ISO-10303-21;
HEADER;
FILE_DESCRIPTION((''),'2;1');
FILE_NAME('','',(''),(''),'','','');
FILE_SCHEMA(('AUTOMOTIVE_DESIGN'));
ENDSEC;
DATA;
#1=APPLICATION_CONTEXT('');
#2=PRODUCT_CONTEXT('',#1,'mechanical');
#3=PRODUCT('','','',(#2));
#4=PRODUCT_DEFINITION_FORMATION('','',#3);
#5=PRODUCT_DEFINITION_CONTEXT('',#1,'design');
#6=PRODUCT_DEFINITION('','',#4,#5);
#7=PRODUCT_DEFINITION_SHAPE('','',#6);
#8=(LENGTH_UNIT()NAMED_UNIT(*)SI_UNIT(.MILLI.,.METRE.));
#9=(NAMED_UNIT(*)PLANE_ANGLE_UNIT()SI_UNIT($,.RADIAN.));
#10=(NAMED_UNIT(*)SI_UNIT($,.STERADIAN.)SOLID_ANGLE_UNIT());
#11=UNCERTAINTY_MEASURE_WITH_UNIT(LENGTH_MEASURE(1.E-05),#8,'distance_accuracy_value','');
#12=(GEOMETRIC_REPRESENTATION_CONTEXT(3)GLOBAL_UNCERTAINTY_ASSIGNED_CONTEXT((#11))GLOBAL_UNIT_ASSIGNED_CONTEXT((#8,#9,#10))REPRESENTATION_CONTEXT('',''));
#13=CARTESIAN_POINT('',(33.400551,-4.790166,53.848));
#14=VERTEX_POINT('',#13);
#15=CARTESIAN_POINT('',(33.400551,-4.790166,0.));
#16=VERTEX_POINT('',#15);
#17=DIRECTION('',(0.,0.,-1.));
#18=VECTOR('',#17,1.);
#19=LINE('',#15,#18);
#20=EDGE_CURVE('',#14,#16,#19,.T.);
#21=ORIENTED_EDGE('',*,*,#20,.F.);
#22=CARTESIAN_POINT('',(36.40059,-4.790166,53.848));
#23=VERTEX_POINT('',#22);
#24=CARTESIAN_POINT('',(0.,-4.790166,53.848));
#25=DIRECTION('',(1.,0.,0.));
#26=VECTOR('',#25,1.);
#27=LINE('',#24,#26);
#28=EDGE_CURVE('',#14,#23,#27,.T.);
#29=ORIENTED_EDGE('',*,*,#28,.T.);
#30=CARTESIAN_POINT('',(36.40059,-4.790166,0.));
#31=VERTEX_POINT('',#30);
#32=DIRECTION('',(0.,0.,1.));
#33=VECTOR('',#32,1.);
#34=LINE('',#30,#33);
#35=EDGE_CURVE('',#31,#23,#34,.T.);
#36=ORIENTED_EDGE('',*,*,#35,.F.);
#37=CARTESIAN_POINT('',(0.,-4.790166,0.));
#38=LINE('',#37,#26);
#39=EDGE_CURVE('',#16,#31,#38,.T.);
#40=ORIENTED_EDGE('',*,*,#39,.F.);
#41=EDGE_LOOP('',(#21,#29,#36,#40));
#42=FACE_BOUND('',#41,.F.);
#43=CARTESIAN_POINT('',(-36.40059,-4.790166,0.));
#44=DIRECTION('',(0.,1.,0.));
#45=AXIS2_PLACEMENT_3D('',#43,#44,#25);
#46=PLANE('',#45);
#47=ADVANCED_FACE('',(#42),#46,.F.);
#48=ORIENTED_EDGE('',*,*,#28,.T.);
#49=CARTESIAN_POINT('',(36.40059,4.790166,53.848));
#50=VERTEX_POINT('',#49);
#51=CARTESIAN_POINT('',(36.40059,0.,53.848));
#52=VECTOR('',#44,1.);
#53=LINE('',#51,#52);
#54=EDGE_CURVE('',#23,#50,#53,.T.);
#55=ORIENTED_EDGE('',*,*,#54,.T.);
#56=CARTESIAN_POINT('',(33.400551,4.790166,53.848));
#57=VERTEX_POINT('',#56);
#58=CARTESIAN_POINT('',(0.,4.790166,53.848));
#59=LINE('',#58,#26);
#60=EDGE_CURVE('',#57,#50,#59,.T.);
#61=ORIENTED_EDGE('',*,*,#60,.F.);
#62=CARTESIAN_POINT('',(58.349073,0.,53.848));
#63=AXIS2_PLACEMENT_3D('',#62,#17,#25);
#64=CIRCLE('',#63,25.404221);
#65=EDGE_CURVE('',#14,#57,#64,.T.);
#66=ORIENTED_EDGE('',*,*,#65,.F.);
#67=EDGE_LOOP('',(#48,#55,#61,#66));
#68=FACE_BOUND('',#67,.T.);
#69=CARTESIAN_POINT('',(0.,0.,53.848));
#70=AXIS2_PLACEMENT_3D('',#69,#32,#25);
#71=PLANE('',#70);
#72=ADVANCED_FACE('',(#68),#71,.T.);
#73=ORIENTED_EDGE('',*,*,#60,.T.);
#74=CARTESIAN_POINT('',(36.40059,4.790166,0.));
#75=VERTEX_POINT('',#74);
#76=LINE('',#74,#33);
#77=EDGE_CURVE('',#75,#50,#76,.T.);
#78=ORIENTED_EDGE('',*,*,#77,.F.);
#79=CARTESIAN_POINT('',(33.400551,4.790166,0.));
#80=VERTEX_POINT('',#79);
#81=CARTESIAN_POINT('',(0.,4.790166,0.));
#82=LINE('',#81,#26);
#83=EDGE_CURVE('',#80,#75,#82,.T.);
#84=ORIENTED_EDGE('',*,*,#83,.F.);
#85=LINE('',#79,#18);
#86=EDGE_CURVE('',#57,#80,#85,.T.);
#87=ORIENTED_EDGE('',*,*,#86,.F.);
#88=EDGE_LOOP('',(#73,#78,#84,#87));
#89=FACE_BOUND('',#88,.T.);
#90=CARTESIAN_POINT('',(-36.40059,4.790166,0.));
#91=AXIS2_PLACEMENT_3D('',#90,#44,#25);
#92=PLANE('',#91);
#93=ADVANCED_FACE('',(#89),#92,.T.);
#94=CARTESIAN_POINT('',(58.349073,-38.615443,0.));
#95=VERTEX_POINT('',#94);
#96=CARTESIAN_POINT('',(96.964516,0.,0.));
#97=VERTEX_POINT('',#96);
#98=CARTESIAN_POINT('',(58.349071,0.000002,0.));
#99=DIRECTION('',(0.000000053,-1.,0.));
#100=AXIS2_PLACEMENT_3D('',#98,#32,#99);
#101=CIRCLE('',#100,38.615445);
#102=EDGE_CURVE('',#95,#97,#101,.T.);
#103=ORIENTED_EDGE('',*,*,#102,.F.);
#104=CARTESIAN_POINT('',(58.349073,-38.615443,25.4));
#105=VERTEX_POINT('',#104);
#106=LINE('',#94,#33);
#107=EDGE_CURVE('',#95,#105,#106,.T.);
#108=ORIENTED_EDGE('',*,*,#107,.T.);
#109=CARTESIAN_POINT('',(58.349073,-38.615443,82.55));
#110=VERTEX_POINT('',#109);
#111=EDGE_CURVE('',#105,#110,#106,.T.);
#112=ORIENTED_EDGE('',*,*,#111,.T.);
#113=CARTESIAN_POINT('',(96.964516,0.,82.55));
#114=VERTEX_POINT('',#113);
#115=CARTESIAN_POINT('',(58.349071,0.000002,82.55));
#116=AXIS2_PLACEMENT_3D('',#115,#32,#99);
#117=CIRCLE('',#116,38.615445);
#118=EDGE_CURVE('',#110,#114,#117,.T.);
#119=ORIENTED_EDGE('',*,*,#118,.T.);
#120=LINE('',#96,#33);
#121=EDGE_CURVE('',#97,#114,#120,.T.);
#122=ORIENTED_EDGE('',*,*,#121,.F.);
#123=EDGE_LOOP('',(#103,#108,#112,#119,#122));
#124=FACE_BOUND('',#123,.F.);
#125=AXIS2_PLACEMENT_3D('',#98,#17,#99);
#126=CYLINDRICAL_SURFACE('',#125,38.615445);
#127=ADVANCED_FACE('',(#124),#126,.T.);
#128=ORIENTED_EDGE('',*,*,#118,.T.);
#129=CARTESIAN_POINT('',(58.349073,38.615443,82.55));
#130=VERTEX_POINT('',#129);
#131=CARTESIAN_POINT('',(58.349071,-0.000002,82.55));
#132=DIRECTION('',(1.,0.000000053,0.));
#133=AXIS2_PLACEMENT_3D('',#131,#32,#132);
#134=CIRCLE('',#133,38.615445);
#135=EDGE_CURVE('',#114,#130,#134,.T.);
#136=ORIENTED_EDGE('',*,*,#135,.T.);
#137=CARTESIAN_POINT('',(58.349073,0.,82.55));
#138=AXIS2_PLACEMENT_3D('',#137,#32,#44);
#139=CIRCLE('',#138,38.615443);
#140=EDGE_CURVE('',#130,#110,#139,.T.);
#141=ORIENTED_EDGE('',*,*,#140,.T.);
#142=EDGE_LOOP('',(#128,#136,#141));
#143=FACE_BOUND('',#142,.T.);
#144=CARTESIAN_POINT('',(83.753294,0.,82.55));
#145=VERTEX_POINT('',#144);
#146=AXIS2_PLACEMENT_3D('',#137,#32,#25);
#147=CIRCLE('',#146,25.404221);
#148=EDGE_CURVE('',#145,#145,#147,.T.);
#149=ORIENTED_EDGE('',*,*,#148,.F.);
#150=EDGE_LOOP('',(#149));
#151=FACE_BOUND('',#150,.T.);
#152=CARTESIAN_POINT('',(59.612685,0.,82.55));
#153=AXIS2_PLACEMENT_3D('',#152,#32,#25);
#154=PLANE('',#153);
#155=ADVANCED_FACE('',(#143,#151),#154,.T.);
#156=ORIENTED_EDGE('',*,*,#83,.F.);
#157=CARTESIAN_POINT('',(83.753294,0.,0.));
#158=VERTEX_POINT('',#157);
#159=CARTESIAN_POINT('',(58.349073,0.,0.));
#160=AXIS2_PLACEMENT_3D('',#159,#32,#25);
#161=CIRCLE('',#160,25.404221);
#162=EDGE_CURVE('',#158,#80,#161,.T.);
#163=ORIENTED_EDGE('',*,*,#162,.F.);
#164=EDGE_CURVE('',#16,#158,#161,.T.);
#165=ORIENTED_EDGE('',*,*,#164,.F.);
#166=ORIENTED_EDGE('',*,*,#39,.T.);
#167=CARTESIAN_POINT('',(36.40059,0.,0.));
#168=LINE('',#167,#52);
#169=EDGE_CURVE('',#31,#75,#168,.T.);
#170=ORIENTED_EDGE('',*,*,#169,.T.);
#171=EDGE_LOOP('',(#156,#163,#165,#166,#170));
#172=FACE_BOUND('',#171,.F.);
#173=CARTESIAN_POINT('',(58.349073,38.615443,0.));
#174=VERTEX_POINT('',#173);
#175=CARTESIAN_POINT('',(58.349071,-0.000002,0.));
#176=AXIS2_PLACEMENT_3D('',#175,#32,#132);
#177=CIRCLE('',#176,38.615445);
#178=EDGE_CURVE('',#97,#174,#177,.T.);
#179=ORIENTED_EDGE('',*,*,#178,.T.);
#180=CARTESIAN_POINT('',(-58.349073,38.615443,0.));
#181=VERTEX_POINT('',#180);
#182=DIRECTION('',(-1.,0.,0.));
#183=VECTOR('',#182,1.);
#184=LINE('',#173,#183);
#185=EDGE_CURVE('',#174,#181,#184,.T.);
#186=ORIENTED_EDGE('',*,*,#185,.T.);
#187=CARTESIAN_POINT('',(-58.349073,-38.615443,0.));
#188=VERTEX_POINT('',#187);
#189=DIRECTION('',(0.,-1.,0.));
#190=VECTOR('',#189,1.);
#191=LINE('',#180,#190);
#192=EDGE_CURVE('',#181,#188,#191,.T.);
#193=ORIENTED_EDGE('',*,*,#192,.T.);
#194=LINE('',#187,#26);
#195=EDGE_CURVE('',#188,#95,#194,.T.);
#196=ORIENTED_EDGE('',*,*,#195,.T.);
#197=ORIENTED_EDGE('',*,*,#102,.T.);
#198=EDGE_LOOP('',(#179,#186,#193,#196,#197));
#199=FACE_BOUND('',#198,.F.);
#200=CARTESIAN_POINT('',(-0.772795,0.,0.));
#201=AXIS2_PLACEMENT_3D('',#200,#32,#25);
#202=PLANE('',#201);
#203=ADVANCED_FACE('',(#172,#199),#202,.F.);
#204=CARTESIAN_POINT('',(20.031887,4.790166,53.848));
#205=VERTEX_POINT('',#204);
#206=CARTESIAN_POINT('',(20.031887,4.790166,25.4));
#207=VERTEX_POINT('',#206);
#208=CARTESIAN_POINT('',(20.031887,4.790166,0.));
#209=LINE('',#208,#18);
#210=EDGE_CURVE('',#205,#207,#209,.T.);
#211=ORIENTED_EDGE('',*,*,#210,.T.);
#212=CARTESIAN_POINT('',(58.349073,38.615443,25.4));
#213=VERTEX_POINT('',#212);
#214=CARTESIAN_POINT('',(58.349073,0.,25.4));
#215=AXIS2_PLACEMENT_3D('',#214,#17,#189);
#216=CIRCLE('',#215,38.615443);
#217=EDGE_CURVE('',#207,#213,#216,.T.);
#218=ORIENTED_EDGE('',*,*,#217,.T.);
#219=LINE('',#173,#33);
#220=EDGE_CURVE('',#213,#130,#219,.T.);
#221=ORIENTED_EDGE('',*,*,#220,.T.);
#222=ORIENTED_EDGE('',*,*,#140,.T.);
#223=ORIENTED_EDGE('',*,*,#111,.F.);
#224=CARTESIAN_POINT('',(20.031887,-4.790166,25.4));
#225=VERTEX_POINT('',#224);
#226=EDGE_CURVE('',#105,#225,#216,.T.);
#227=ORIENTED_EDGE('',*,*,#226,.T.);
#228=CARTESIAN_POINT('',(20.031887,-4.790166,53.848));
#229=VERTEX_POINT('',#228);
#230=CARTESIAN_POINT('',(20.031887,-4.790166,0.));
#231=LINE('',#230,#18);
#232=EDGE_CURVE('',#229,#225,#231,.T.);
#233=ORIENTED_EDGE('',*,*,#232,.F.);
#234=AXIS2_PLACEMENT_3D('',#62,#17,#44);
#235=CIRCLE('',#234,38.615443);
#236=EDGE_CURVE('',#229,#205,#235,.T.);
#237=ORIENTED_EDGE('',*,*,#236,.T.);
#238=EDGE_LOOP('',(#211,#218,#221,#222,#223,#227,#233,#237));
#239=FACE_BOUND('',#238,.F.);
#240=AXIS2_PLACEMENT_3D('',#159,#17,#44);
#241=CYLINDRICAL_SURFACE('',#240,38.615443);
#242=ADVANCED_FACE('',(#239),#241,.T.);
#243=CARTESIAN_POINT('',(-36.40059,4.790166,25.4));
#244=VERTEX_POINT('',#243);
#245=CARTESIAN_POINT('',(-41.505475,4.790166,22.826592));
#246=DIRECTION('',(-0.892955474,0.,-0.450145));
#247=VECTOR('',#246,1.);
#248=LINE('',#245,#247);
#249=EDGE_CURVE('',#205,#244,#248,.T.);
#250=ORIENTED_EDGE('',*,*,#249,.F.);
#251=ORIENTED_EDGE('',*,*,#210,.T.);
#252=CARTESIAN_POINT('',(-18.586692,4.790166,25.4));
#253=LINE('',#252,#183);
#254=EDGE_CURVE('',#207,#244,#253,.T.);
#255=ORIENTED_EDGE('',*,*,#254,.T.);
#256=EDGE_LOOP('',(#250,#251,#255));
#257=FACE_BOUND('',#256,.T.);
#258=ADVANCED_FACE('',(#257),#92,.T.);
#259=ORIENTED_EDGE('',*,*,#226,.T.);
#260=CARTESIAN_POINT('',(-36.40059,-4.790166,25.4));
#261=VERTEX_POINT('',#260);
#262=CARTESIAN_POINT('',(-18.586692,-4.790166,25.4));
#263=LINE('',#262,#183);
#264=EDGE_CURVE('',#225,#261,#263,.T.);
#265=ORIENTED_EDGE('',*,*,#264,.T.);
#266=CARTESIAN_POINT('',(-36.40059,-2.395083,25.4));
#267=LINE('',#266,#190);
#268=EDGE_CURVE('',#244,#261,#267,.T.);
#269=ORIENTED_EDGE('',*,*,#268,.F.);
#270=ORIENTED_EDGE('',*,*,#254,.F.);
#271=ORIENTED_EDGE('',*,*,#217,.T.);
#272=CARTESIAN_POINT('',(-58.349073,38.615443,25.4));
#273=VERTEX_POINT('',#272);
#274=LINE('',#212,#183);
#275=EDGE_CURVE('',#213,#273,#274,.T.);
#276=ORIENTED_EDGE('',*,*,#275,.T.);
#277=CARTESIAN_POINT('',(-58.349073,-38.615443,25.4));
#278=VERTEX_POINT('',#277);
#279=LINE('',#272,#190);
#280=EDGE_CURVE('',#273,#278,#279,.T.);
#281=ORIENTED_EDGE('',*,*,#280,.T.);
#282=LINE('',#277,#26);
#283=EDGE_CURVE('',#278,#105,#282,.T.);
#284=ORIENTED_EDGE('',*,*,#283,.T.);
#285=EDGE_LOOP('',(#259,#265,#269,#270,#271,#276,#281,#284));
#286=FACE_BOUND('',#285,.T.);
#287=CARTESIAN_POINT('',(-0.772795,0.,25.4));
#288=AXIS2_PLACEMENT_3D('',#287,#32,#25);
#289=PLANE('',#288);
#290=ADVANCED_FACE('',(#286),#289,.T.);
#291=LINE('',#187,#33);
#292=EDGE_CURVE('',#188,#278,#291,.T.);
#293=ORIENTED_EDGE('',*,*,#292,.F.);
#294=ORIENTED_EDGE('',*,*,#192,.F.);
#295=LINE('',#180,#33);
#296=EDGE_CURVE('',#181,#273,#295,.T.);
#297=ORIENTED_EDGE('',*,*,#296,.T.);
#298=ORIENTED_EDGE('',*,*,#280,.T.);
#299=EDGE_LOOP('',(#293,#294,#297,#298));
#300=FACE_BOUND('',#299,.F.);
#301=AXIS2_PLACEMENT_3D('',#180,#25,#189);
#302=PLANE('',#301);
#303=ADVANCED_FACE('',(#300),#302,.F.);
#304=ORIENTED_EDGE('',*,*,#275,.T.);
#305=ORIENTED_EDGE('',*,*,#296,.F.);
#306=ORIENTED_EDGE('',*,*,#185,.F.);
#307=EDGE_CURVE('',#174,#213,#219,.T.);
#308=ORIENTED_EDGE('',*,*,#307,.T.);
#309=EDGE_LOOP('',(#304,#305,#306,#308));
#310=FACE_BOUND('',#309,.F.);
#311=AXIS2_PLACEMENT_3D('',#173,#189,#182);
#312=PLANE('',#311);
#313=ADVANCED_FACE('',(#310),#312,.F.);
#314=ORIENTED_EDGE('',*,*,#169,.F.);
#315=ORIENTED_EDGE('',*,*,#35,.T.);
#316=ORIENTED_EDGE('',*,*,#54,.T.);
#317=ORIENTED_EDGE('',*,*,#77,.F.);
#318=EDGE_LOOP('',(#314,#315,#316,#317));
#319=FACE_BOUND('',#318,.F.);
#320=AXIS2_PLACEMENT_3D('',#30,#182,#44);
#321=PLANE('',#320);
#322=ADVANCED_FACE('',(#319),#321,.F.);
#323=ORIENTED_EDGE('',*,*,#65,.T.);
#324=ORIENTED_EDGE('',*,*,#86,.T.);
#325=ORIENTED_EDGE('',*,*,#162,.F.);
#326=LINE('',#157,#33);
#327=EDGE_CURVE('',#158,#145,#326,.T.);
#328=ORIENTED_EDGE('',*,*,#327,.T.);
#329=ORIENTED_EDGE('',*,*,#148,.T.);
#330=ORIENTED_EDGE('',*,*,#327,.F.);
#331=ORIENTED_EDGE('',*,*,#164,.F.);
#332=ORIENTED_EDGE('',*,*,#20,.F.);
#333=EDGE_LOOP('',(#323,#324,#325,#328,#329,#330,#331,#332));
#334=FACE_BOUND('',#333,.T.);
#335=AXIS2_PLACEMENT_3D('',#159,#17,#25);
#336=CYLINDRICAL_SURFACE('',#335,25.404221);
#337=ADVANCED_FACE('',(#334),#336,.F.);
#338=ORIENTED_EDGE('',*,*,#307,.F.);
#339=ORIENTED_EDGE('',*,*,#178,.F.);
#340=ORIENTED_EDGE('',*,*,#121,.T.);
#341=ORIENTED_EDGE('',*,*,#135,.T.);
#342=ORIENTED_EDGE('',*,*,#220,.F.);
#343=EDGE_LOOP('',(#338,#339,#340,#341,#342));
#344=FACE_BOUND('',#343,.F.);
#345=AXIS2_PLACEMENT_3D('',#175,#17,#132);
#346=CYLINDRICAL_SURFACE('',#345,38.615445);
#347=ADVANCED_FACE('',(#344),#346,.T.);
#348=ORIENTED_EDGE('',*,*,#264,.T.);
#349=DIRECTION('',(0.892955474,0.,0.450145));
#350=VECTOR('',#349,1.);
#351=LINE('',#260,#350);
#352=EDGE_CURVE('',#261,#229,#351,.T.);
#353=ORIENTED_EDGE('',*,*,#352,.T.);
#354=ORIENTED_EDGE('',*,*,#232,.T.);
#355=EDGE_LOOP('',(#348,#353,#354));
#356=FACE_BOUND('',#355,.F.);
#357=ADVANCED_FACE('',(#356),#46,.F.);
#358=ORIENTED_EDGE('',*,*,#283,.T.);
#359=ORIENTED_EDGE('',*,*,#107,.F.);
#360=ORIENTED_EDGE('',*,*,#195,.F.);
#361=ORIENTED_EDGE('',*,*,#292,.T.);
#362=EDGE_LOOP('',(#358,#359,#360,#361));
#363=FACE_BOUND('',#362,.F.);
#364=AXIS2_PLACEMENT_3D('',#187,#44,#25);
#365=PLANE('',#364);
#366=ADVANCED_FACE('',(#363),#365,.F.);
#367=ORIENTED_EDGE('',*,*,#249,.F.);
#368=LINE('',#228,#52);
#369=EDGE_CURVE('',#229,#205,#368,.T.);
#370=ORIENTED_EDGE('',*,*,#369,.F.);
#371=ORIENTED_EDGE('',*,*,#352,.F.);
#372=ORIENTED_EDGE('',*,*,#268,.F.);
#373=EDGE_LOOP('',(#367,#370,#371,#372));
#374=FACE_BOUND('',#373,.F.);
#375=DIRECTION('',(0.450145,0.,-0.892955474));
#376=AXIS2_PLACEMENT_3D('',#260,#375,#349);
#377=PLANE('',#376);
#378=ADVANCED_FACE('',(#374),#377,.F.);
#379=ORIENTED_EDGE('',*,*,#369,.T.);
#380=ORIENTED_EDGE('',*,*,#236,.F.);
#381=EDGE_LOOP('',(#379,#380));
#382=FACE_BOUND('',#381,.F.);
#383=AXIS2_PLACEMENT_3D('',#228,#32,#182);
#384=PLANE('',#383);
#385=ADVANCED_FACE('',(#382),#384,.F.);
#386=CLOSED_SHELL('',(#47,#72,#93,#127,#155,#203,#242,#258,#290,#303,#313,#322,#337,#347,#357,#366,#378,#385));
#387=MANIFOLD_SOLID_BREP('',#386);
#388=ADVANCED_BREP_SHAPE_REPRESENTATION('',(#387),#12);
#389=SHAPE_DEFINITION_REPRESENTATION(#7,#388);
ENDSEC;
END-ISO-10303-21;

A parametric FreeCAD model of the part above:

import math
import FreeCAD as App
import Part
import Sketcher

V = App.Vector
Q = App.Units.Quantity


def add_polygon(sketch, points):
    """Adds a closed chain of lines whose ends are joined by coincident constraints."""
    first, n = sketch.GeometryCount, len(points)
    for a, b in zip(points, points[1:] + points[:1]):
        sketch.addGeometry(Part.LineSegment(App.Vector(*a, 0), App.Vector(*b, 0)), False)
    for i in range(n):
        sketch.addConstraint(Sketcher.Constraint("Coincident", first + i, 2, first + (i + 1) % n, 1))

doc = App.newDocument("Part")
body = doc.addObject("PartDesign::Body", "Body")

sketch1 = body.newObject("Sketcher::SketchObject", "Sketch")
sketch1.AttachmentSupport = (doc.getObject("XY_Plane"), [""])
sketch1.MapMode = "FlatFace"
sketch1.addGeometry([
    Part.ArcOfCircle(Part.Circle(V(58, 0, 0), V(0, 0, 1), 39), math.radians(0), math.radians(90)),
    Part.ArcOfCircle(Part.Circle(V(58, 0, 0), V(0, 0, 1), 39), math.radians(90), math.radians(270)),
    Part.ArcOfCircle(Part.Circle(V(58, 0, 0), V(0, 0, 1), 39), math.radians(-90), math.radians(0)),
    Part.Circle(V(58, 0, 0), V(0, 0, 1), 25),
], False)
sketch1.addConstraint([
    Sketcher.Constraint("Tangent", 0, 2, 1, 1),
    Sketcher.Constraint("Tangent", 1, 2, 2, 1),
    Sketcher.Constraint("Tangent", 2, 2, 0, 1),
    Sketcher.Constraint("Coincident", 3, 3, 0, 3),
    Sketcher.Constraint("Symmetric", 0, 2, 1, 2, -1),
    Sketcher.Constraint("PointOnObject", 2, 2, -1),
    Sketcher.Constraint("Vertical", 3, 3, 0, 2),
    Sketcher.Constraint("Diameter", 3, Q("50.808442 mm")),
    Sketcher.Constraint("Radius", 0, Q("38.615445 mm")),
    Sketcher.Constraint("DistanceX", -1, 1, 0, 3, Q("58.349071 mm")),
])
pad1 = body.newObject("PartDesign::Pad", "Pad")
pad1.Profile = sketch1
pad1.Length = Q("3.25 in")

sketch2 = body.newObject("Sketcher::SketchObject", "Sketch001")
sketch2.AttachmentSupport = (doc.getObject("XY_Plane"), [""])
sketch2.MapMode = "FlatFace"
sketch2.addGeometry([
    Part.LineSegment(V(58, 39, 0), V(-58, 39, 0)),
    Part.LineSegment(V(-58, 39, 0), V(-58, -39, 0)),
    Part.LineSegment(V(-58, -39, 0), V(58, -39, 0)),
    Part.ArcOfCircle(Part.Circle(V(58, 0, 0), V(0, 0, 1), 39), math.radians(90), math.radians(270)),
], False)
sketch2.addConstraint([
    Sketcher.Constraint("Coincident", 0, 2, 1, 1),
    Sketcher.Constraint("Coincident", 1, 2, 2, 1),
    Sketcher.Constraint("Tangent", 2, 2, 3, 2),
    Sketcher.Constraint("Tangent", 3, 1, 0, 1),
    Sketcher.Constraint("Horizontal", 0),
    Sketcher.Constraint("Vertical", 1),
    Sketcher.Constraint("Horizontal", 2),
    Sketcher.Constraint("Symmetric", 0, 2, 2, 2, -1, 1),
    Sketcher.Constraint("Radius", 3, Q("38.615443 mm")),
    Sketcher.Constraint("DistanceX", 0, 2, 0, 1, Q("116.698146 mm")),
])
pad2 = body.newObject("PartDesign::Pad", "Pad001")
pad2.Profile = sketch2
pad2.Length = Q("1 in")

sketch3 = body.newObject("Sketcher::SketchObject", "Sketch002")
sketch3.AttachmentSupport = (doc.getObject("XY_Plane"), [""])
sketch3.MapMode = "FlatFace"
add_polygon(sketch3, [(-36, 5), (-36, -5), (36, -5), (36, 5)])
sketch3.addConstraint([
    Sketcher.Constraint("Vertical", 0),
    Sketcher.Constraint("Horizontal", 1),
    Sketcher.Constraint("Vertical", 2),
    Sketcher.Constraint("Horizontal", 3),
    Sketcher.Constraint("Symmetric", 0, 2, 2, 2, -1, 1),
    Sketcher.Constraint("DistanceX", 1, 1, 1, 2, Q("72.80118 mm")),
    Sketcher.Constraint("DistanceY", 0, 2, 0, 1, Q("9.580332 mm")),
])
pad3 = body.newObject("PartDesign::Pad", "Pad002")
pad3.Profile = sketch3
pad3.Length = Q("2.12 in")

sketch4 = body.newObject("Sketcher::SketchObject", "Sketch003")
sketch4.AttachmentSupport = (doc.getObject("XZ_Plane"), [""])
sketch4.MapMode = "FlatFace"
sketch4.AttachmentOffset = App.Placement(V(0, 0, 4.790166), App.Rotation())
add_polygon(sketch4, [(-36, 25), (20, 54), (-36, 54)])
sketch4.addConstraint([
    Sketcher.Constraint("Horizontal", 1),
    Sketcher.Constraint("Vertical", 2),
    Sketcher.Constraint("DistanceY", -1, 1, 2, 2, Q("1 in")),
    Sketcher.Constraint("DistanceY", 2, 2, 2, 1, Q("1.12 in")),
    Sketcher.Constraint("DistanceX", 1, 2, 1, 1, Q("56.432477 mm")),
    Sketcher.Constraint("DistanceX", 1, 2, -1, 1, Q("36.40059 mm")),
])
pocket1 = body.newObject("PartDesign::Pocket", "Pocket")
pocket1.Profile = sketch4
pocket1.Length = Q("1 in")

doc.recompute()
